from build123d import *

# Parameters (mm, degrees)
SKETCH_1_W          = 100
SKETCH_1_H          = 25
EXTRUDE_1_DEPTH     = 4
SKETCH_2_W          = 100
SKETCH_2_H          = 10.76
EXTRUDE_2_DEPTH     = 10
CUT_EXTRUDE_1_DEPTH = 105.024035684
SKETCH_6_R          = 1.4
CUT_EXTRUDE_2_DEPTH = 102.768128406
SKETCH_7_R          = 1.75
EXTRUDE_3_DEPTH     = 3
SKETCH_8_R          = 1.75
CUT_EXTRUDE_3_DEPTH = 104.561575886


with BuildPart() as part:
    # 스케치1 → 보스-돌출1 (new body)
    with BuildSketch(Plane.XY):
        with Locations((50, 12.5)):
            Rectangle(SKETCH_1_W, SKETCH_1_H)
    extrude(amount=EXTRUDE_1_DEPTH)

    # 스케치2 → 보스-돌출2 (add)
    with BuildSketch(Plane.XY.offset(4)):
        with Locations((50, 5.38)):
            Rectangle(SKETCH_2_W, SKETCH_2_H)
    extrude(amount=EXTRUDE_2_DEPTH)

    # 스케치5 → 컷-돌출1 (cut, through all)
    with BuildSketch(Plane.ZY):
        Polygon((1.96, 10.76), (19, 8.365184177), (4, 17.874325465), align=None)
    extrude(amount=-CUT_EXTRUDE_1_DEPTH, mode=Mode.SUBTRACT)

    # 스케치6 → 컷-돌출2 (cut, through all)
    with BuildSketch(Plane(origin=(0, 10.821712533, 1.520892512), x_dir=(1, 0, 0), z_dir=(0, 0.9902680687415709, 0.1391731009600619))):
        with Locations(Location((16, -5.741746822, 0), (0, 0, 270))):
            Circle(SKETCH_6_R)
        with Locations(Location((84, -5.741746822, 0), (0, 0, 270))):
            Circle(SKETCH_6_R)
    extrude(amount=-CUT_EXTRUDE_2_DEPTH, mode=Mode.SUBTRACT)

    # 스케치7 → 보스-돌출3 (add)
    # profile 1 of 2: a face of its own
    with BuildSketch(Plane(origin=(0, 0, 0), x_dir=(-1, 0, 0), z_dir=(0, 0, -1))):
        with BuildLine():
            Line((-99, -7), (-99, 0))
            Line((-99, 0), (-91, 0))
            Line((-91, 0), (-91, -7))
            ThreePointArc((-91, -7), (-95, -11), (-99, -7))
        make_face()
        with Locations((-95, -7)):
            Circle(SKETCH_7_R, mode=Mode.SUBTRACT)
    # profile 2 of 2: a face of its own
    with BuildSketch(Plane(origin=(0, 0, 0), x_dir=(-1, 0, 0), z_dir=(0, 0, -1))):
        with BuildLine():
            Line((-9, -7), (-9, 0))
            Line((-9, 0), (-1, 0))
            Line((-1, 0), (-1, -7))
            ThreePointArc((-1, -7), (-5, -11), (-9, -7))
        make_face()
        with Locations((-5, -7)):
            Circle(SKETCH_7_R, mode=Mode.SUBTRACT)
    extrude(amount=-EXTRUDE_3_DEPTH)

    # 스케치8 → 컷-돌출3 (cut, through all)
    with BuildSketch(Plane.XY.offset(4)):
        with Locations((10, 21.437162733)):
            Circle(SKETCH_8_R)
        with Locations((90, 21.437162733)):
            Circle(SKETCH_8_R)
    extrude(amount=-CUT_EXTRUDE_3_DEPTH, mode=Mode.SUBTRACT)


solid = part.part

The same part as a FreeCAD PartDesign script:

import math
import FreeCAD as App
import Part
import Sketcher
Q = App.Units.Quantity

doc = App.newDocument("Part")
body = doc.addObject("PartDesign::Body", "Body")

# Sketch on XY plane
sketch1 = body.newObject("Sketcher::SketchObject", "Sketch")
sketch1.AttachmentSupport = (doc.getObject("XY_Plane"), [""])
sketch1.MapMode = "FlatFace"
sketch1.addGeometry([
    Part.LineSegment(App.Vector(0, 25, 0), App.Vector(0, 0, 0)),
    Part.LineSegment(App.Vector(0, 0, 0), App.Vector(100, 0, 0)),
    Part.LineSegment(App.Vector(100, 0, 0), App.Vector(100, 25, 0)),
    Part.LineSegment(App.Vector(100, 25, 0), App.Vector(0, 25, 0)),
], False)
sketch1.addConstraint([
    Sketcher.Constraint("Coincident", 0, 2, 1, 1),
    Sketcher.Constraint("Coincident", 1, 2, 2, 1),
    Sketcher.Constraint("Coincident", 2, 2, 3, 1),
    Sketcher.Constraint("Coincident", 3, 2, 0, 1),
    Sketcher.Constraint("Vertical", 0),
    Sketcher.Constraint("Horizontal", 1),
    Sketcher.Constraint("Vertical", 2),
    Sketcher.Constraint("Horizontal", 3),
    Sketcher.Constraint("Coincident", 0, 2, -1, 1),
    Sketcher.Constraint("DistanceX", 1, 1, 1, 2, Q("100 mm")),
    Sketcher.Constraint("DistanceY", 0, 2, 0, 1, Q("25 mm")),
])
pad1 = body.newObject("PartDesign::Pad", "Pad")
pad1.Profile = sketch1
pad1.Length = 4

# Sketch on XY plane
sketch2 = body.newObject("Sketcher::SketchObject", "Sketch001")
sketch2.AttachmentSupport = (doc.getObject("XY_Plane"), [""])
sketch2.MapMode = "FlatFace"
sketch2.AttachmentOffset = App.Placement(App.Vector(0, 0, 4), App.Rotation())
sketch2.addGeometry([
    Part.LineSegment(App.Vector(0, 11, 0), App.Vector(0, 0, 0)),
    Part.LineSegment(App.Vector(0, 0, 0), App.Vector(100, 0, 0)),
    Part.LineSegment(App.Vector(100, 0, 0), App.Vector(100, 11, 0)),
    Part.LineSegment(App.Vector(100, 11, 0), App.Vector(0, 11, 0)),
], False)
sketch2.addConstraint([
    Sketcher.Constraint("Coincident", 0, 2, 1, 1),
    Sketcher.Constraint("Coincident", 1, 2, 2, 1),
    Sketcher.Constraint("Coincident", 2, 2, 3, 1),
    Sketcher.Constraint("Coincident", 3, 2, 0, 1),
    Sketcher.Constraint("Vertical", 0),
    Sketcher.Constraint("Horizontal", 1),
    Sketcher.Constraint("Vertical", 2),
    Sketcher.Constraint("Horizontal", 3),
    Sketcher.Constraint("Coincident", 0, 2, -1, 1),
    Sketcher.Constraint("DistanceX", 1, 1, 1, 2, Q("100 mm")),
    Sketcher.Constraint("DistanceY", 0, 2, 0, 1, Q("10.76 mm")),
])
pad2 = body.newObject("PartDesign::Pad", "Pad001")
pad2.Profile = sketch2
pad2.Length = 10

# Sketch on YZ plane
sketch3 = body.newObject("Sketcher::SketchObject", "Sketch002")
sketch3.AttachmentSupport = (doc.getObject("YZ_Plane"), [""])
sketch3.MapMode = "FlatFace"
sketch3.addGeometry([
    Part.LineSegment(App.Vector(11, 2, 0), App.Vector(8, 19, 0)),
    Part.LineSegment(App.Vector(8, 19, 0), App.Vector(18, 4, 0)),
    Part.LineSegment(App.Vector(18, 4, 0), App.Vector(11, 2, 0)),
], False)
sketch3.addConstraint([
    Sketcher.Constraint("Coincident", 0, 2, 1, 1),
    Sketcher.Constraint("Coincident", 1, 2, 2, 1),
    Sketcher.Constraint("Coincident", 2, 2, 0, 1),
    Sketcher.Constraint("Angle", 0, Q("98 deg")),
    Sketcher.Constraint("Angle", 2, Q("-164 deg")),
    Sketcher.Constraint("DistanceY", -1, 1, 0, 2, Q("19 mm")),
    Sketcher.Constraint("DistanceY", -1, 1, 1, 2, Q("4 mm")),
    Sketcher.Constraint("DistanceX", -1, 1, 2, 2, Q("10.76 mm")),
    Sketcher.Constraint("DistanceY", -1, 1, 2, 2, Q("1.96 mm")),
])
pocket1 = body.newObject("PartDesign::Pocket", "Pocket")
pocket1.Profile = sketch3
pocket1.Type = "ThroughAll"
pocket1.Reversed = True

# Sketch on an angled plane
sketch4 = body.newObject("Sketcher::SketchObject", "Sketch003")
sketch4.Placement = App.Placement(App.Vector(0, 10.821713, 1.520893), App.Rotation(App.Vector(1, 0, 0), App.Vector(0, 0.139173101, -0.990268069), App.Vector(0, 0.990268069, 0.139173101), "ZXY"))
sketch4.addGeometry([
    Part.Circle(App.Vector(16, -5.7, 0), App.Vector(0, 0, 1), 1.4),
    Part.Circle(App.Vector(84, -5.7, 0), App.Vector(0, 0, 1), 1.4),
], False)
sketch4.addConstraint([
    Sketcher.Constraint("Equal", 0, 1),
    Sketcher.Constraint("Horizontal", 0, 3, 1, 3),
    Sketcher.Constraint("Diameter", 0, Q("2.8 mm")),
    Sketcher.Constraint("DistanceX", -1, 1, 0, 3, Q("16 mm")),
    Sketcher.Constraint("DistanceX", -1, 1, 1, 3, Q("84 mm")),
    Sketcher.Constraint("DistanceY", 0, 3, -1, 1, Q("5.741747 mm")),
])
pocket2 = body.newObject("PartDesign::Pocket", "Pocket001")
pocket2.Profile = sketch4
pocket2.Type = "ThroughAll"

# Sketch on XY plane
sketch5 = body.newObject("Sketcher::SketchObject", "Sketch004")
sketch5.AttachmentSupport = (doc.getObject("XY_Plane"), [""])
sketch5.MapMode = "FlatFace"
sketch5.addGeometry([
    Part.LineSegment(App.Vector(99, 0, 0), App.Vector(99, -7, 0)),  # 0
    Part.ArcOfCircle(Part.Circle(App.Vector(95, -7, 0), App.Vector(0, 0, 1), 4), math.radians(180), math.radians(360)),  # 1
    Part.LineSegment(App.Vector(91, -7, 0), App.Vector(91, 0, 0)),  # 2
    Part.LineSegment(App.Vector(91, 0, 0), App.Vector(99, 0, 0)),  # 3
    Part.Circle(App.Vector(95, -7, 0), App.Vector(0, 0, 1), 1.8),  # 4
    Part.LineSegment(App.Vector(9, 0, 0), App.Vector(9, -7, 0)),  # 5
    Part.ArcOfCircle(Part.Circle(App.Vector(5, -7, 0), App.Vector(0, 0, 1), 4), math.radians(180), math.radians(360)),  # 6
    Part.LineSegment(App.Vector(1, -7, 0), App.Vector(1, 0, 0)),  # 7
    Part.LineSegment(App.Vector(1, 0, 0), App.Vector(9, 0, 0)),  # 8
    Part.Circle(App.Vector(5, -7, 0), App.Vector(0, 0, 1), 1.8),  # 9
], False)
sketch5.addConstraint([
    Sketcher.Constraint("Tangent", 0, 2, 1, 2),
    Sketcher.Constraint("Tangent", 1, 1, 2, 1),
    Sketcher.Constraint("Coincident", 2, 2, 3, 1),
    Sketcher.Constraint("Coincident", 3, 2, 0, 1),
    Sketcher.Constraint("Tangent", 5, 2, 6, 2),
    Sketcher.Constraint("Tangent", 6, 1, 7, 1),
    Sketcher.Constraint("Coincident", 7, 2, 8, 1),
    Sketcher.Constraint("Coincident", 8, 2, 5, 1),
    Sketcher.Constraint("Vertical", 0),
    Sketcher.Constraint("Vertical", 2),
    Sketcher.Constraint("Horizontal", 3),
    Sketcher.Constraint("Vertical", 5),
    Sketcher.Constraint("Vertical", 7),
    Sketcher.Constraint("Horizontal", 8),
    Sketcher.Constraint("Coincident", 4, 3, 1, 3),
    Sketcher.Constraint("Coincident", 9, 3, 6, 3),
    Sketcher.Constraint("Equal", 1, 6),
    Sketcher.Constraint("Equal", 4, 9),
    Sketcher.Constraint("PointOnObject", 2, 2, -1),
    Sketcher.Constraint("PointOnObject", 7, 2, -1),
    Sketcher.Constraint("Horizontal", 4, 3, 6, 3),
    Sketcher.Constraint("Radius", 1, Q("4 mm")),
    Sketcher.Constraint("Diameter", 4, Q("3.5 mm")),
    Sketcher.Constraint("DistanceY", 0, 2, 0, 1, Q("7 mm")),
    Sketcher.Constraint("DistanceX", -1, 1, 1, 3, Q("95 mm")),
    Sketcher.Constraint("DistanceX", -1, 1, 6, 3, Q("5 mm")),
])
pad3 = body.newObject("PartDesign::Pad", "Pad002")
pad3.Profile = sketch5
pad3.Length = 3

# Sketch on XY plane
sketch6 = body.newObject("Sketcher::SketchObject", "Sketch005")
sketch6.AttachmentSupport = (doc.getObject("XY_Plane"), [""])
sketch6.MapMode = "FlatFace"
sketch6.AttachmentOffset = App.Placement(App.Vector(0, 0, 4), App.Rotation())
sketch6.addGeometry([
    Part.Circle(App.Vector(10, 21.4, 0), App.Vector(0, 0, 1), 1.8),
    Part.Circle(App.Vector(90, 21.4, 0), App.Vector(0, 0, 1), 1.8),
], False)
sketch6.addConstraint([
    Sketcher.Constraint("Equal", 0, 1),
    Sketcher.Constraint("Horizontal", 0, 3, 1, 3),
    Sketcher.Constraint("Diameter", 0, Q("3.5 mm")),
    Sketcher.Constraint("DistanceX", -1, 1, 0, 3, Q("10 mm")),
    Sketcher.Constraint("DistanceX", -1, 1, 1, 3, Q("90 mm")),
    Sketcher.Constraint("DistanceY", -1, 1, 0, 3, Q("21.437163 mm")),
])
pocket3 = body.newObject("PartDesign::Pocket", "Pocket002")
pocket3.Profile = sketch6
pocket3.Type = "ThroughAll"

doc.recompute()
